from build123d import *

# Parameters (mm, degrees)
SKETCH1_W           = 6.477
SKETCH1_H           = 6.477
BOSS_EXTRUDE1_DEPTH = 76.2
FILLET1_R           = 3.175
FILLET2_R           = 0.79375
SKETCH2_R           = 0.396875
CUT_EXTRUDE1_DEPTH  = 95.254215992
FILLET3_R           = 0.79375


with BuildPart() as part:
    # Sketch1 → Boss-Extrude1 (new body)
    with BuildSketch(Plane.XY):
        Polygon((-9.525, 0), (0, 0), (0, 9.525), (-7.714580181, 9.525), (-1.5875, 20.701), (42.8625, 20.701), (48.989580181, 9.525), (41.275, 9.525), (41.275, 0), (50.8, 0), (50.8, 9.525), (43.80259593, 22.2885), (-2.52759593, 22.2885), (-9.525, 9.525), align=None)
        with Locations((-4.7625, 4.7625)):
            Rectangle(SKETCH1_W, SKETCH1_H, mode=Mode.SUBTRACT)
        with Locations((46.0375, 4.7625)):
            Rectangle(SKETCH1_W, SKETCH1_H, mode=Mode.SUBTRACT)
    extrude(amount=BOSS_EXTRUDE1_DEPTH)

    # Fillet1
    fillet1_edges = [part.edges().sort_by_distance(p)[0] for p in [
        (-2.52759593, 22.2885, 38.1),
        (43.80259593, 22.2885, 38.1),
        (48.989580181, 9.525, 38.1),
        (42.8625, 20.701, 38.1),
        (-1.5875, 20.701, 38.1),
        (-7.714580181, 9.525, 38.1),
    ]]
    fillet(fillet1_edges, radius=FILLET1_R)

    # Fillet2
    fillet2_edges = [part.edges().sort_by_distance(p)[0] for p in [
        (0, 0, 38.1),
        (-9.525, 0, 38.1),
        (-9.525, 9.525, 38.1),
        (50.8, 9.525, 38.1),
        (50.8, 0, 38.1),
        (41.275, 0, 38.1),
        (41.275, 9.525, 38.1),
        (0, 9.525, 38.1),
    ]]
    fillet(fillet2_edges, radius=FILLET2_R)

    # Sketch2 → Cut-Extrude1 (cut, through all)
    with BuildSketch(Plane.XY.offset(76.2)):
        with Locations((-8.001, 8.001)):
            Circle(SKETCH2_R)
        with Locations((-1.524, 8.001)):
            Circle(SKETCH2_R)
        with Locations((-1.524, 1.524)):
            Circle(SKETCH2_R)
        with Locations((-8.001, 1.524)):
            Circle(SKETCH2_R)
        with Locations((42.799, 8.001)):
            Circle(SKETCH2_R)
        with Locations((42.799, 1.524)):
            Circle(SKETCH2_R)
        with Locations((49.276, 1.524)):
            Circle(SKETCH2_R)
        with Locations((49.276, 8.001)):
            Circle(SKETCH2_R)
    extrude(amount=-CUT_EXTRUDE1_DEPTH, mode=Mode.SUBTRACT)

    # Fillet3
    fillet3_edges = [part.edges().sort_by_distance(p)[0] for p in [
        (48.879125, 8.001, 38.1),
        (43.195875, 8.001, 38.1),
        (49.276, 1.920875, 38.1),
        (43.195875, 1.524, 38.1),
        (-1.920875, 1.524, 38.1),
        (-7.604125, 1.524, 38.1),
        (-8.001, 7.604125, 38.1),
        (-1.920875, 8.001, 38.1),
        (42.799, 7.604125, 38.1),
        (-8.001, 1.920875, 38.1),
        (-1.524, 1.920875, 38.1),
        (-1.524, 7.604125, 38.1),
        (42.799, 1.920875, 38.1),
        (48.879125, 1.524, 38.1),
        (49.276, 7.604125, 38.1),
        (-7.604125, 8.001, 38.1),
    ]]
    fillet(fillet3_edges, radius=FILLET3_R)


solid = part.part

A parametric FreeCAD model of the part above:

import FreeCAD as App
import Part
import Sketcher

V = App.Vector
Q = App.Units.Quantity


def edges_at(feature, points):
    """Names of the edges that pass closest to the given points."""
    edges = feature.Shape.Edges
    near = lambda p: min(range(len(edges)), key=lambda i: edges[i].distToShape(Part.Vertex(*p))[0])
    return sorted({f"Edge{near(p) + 1}" for p in points})


def add_polygon(sketch, points):
    """Adds a closed chain of lines whose ends are joined by coincident constraints."""
    first, n = sketch.GeometryCount, len(points)
    for a, b in zip(points, points[1:] + points[:1]):
        sketch.addGeometry(Part.LineSegment(App.Vector(*a, 0), App.Vector(*b, 0)), False)
    for i in range(n):
        sketch.addConstraint(Sketcher.Constraint("Coincident", first + i, 2, first + (i + 1) % n, 1))

doc = App.newDocument("Part")
body = doc.addObject("PartDesign::Body", "Body")

sketch1 = doc.addObject("Sketcher::SketchObject", "Sketch")
body.addObject(sketch1)
sketch1.AttachmentSupport = (doc.XY_Plane, [""])
sketch1.MapMode = "FlatFace"
add_polygon(sketch1, [(-9.525, 0), (0, 0), (0, 9.525), (-7.71458, 9.525), (-1.5875, 20.701), (42.8625, 20.701), (48.98958, 9.525), (41.275, 9.525), (41.275, 0), (50.8, 0), (50.8, 9.525), (43.802596, 22.2885), (-2.527596, 22.2885), (-9.525, 9.525)])
add_polygon(sketch1, [(-1.524, 1.524), (-8.001, 1.524), (-8.001, 8.001), (-1.524, 8.001)])
add_polygon(sketch1, [(49.276, 1.524), (42.799, 1.524), (42.799, 8.001), (49.276, 8.001)])
sketch1.addConstraint(Sketcher.Constraint("Horizontal", 0))
sketch1.addConstraint(Sketcher.Constraint("Vertical", 1))
sketch1.addConstraint(Sketcher.Constraint("Horizontal", 2))
sketch1.addConstraint(Sketcher.Constraint("Horizontal", 4))
sketch1.addConstraint(Sketcher.Constraint("Horizontal", 6))
sketch1.addConstraint(Sketcher.Constraint("Vertical", 7))
sketch1.addConstraint(Sketcher.Constraint("Horizontal", 8))
sketch1.addConstraint(Sketcher.Constraint("Vertical", 9))
sketch1.addConstraint(Sketcher.Constraint("Horizontal", 11))
sketch1.addConstraint(Sketcher.Constraint("Vertical", 13))
sketch1.addConstraint(Sketcher.Constraint("Horizontal", 14))
sketch1.addConstraint(Sketcher.Constraint("Vertical", 15))
sketch1.addConstraint(Sketcher.Constraint("Horizontal", 16))
sketch1.addConstraint(Sketcher.Constraint("Vertical", 17))
sketch1.addConstraint(Sketcher.Constraint("Horizontal", 18))
sketch1.addConstraint(Sketcher.Constraint("Vertical", 19))
sketch1.addConstraint(Sketcher.Constraint("Horizontal", 20))
sketch1.addConstraint(Sketcher.Constraint("Vertical", 21))
sketch1.addConstraint(Sketcher.Constraint("Coincident", 0, 2, -1, 1))
sketch1.addConstraint(Sketcher.Constraint("PointOnObject", 7, 2, -1))
sketch1.addConstraint(Sketcher.Constraint("Parallel", 5, 10))
sketch1.addConstraint(Sketcher.Constraint("Parallel", 3, 12))
sketch1.addConstraint(Sketcher.Constraint("Horizontal", 2, 2, 5, 2))
sketch1.addConstraint(Sketcher.Constraint("Horizontal", 6, 2, 9, 2))
sketch1.addConstraint(Sketcher.Constraint("Horizontal", 9, 2, 12, 2))
sketch1.addConstraint(Sketcher.Constraint("Horizontal", 17, 2, 18, 2))
sketch1.addConstraint(Sketcher.Constraint("Horizontal", 16, 2, 19, 2))
sketch1.addConstraint(Sketcher.Constraint("Equal", 2, 6))
sketch1.addConstraint(Sketcher.Constraint("Equal", 0, 8))
sketch1.addConstraint(Sketcher.Constraint("Equal", 16, 18))
sketch1.addConstraint(Sketcher.Constraint("Equal", 8, 1))
sketch1.addConstraint(Sketcher.Constraint("Equal", 20, 15))
sketch1.addConstraint(Sketcher.Constraint("Equal", 3, 5))
sketch1.addConstraint(Sketcher.Constraint("DistanceX", -1, 1, 8, 2, Q("2 in")))
sketch1.addConstraint(Sketcher.Constraint("DistanceX", 4, 1, 4, 2, Q("1.75 in")))
sketch1.addConstraint(Sketcher.Constraint("DistanceX", 0, 1, 0, 2, Q("0.375 in")))
sketch1.addConstraint(Sketcher.Constraint("DistanceX", 14, 2, 14, 1, Q("0.255 in")))
sketch1.addConstraint(Sketcher.Constraint("DistanceY", -1, 1, 14, 2, Q("0.06 in")))
sketch1.addConstraint(Sketcher.Constraint("DistanceX", 16, 2, -1, 1, Q("0.06 in")))
sketch1.addConstraint(Sketcher.Constraint("DistanceX", -1, 1, 20, 2, Q("1.94 in")))
sketch1.addConstraint(Sketcher.Constraint("DistanceY", 1, 2, 3, 2, Q("0.44 in")))
sketch1.addConstraint(Sketcher.Constraint("DistanceY", 4, 2, 10, 2, Q("0.0625 in")))
sketch1.addConstraint(Sketcher.Constraint("DistanceX", 2, 2, 2, 1, Q("7.71458 mm")))
pad1 = doc.addObject("PartDesign::Pad", "Pad")
body.addObject(pad1)
pad1.Profile = sketch1
pad1.Length = Q("3 in")
doc.recompute()

fillet = doc.addObject("PartDesign::Fillet", "Fillet")
body.addObject(fillet)
fillet.Base = (pad1, edges_at(pad1, [
    (-2.528, 22.288, 38.1),
    (43.803, 22.288, 38.1),
    (48.99, 9.525, 38.1),
    (42.862, 20.701, 38.1),
    (-1.587, 20.701, 38.1),
    (-7.715, 9.525, 38.1),
]))
fillet.Radius = Q("0.125 in")
doc.recompute()

fillet2 = doc.addObject("PartDesign::Fillet", "Fillet001")
body.addObject(fillet2)
fillet2.Base = (fillet, edges_at(fillet, [
    (0, 0, 38.1),
    (-9.525, 0, 38.1),
    (-9.525, 9.525, 38.1),
    (50.8, 9.525, 38.1),
    (50.8, 0, 38.1),
    (41.275, 0, 38.1),
    (41.275, 9.525, 38.1),
    (0, 9.525, 38.1),
]))
fillet2.Radius = Q("0.03125 in")

sketch2 = doc.addObject("Sketcher::SketchObject", "Sketch001")
body.addObject(sketch2)
sketch2.AttachmentSupport = (doc.XY_Plane, [""])
sketch2.MapMode = "FlatFace"
sketch2.AttachmentOffset = App.Placement(V(0, 0, 3 * 25.4), App.Rotation())
sketch2.addGeometry(Part.Circle(V(-8.001, 8.001, 0), V(0, 0, 1), 0.396875), False)
sketch2.addGeometry(Part.Circle(V(-1.524, 8.001, 0), V(0, 0, 1), 0.396875), False)
sketch2.addGeometry(Part.Circle(V(-1.524, 1.524, 0), V(0, 0, 1), 0.396875), False)
sketch2.addGeometry(Part.Circle(V(-8.001, 1.524, 0), V(0, 0, 1), 0.396875), False)
sketch2.addGeometry(Part.Circle(V(42.799, 8.001, 0), V(0, 0, 1), 0.396875), False)
sketch2.addGeometry(Part.Circle(V(42.799, 1.524, 0), V(0, 0, 1), 0.396875), False)
sketch2.addGeometry(Part.Circle(V(49.276, 1.524, 0), V(0, 0, 1), 0.396875), False)
sketch2.addGeometry(Part.Circle(V(49.276, 8.001, 0), V(0, 0, 1), 0.396875), False)
sketch2.addConstraint(Sketcher.Constraint("Equal", 0, 1))
sketch2.addConstraint(Sketcher.Constraint("Equal", 1, 2))
sketch2.addConstraint(Sketcher.Constraint("Equal", 2, 3))
sketch2.addConstraint(Sketcher.Constraint("Equal", 3, 4))
sketch2.addConstraint(Sketcher.Constraint("Equal", 4, 5))
sketch2.addConstraint(Sketcher.Constraint("Equal", 5, 6))
sketch2.addConstraint(Sketcher.Constraint("Equal", 6, 7))
sketch2.addConstraint(Sketcher.Constraint("Horizontal", 0, 3, 1, 3))
sketch2.addConstraint(Sketcher.Constraint("Horizontal", 2, 3, 3, 3))
sketch2.addConstraint(Sketcher.Constraint("Horizontal", 1, 3, 4, 3))
sketch2.addConstraint(Sketcher.Constraint("Horizontal", 3, 3, 5, 3))
sketch2.addConstraint(Sketcher.Constraint("Horizontal", 5, 3, 6, 3))
sketch2.addConstraint(Sketcher.Constraint("Horizontal", 4, 3, 7, 3))
sketch2.addConstraint(Sketcher.Constraint("Vertical", 1, 3, 2, 3))
sketch2.addConstraint(Sketcher.Constraint("Vertical", 0, 3, 3, 3))
sketch2.addConstraint(Sketcher.Constraint("Vertical", 4, 3, 5, 3))
sketch2.addConstraint(Sketcher.Constraint("Vertical", 6, 3, 7, 3))
sketch2.addConstraint(Sketcher.Constraint("Diameter", 0, Q("0.03125 in")))
sketch2.addConstraint(Sketcher.Constraint("DistanceX", 0, 3, 4, 3, Q("2 in")))
sketch2.addConstraint(Sketcher.Constraint("DistanceX", 2, 3, 6, 3, Q("2 in")))
sketch2.addConstraint(Sketcher.Constraint("DistanceX", 1, 3, -1, 1, Q("0.06 in")))
sketch2.addConstraint(Sketcher.Constraint("DistanceY", -1, 1, 2, 3, Q("0.06 in")))
sketch2.addConstraint(Sketcher.Constraint("DistanceX", 0, 3, -1, 1, Q("0.315 in")))
sketch2.addConstraint(Sketcher.Constraint("DistanceY", -1, 1, 0, 3, Q("0.315 in")))
pocket1 = doc.addObject("PartDesign::Pocket", "Pocket")
body.addObject(pocket1)
pocket1.Profile = sketch2
pocket1.Type = "ThroughAll"
doc.recompute()

fillet3 = doc.addObject("PartDesign::Fillet", "Fillet002")
body.addObject(fillet3)
fillet3.Base = (pocket1, edges_at(pocket1, [
    (48.879, 8.001, 38.1),
    (43.196, 8.001, 38.1),
    (49.276, 1.921, 38.1),
    (43.196, 1.524, 38.1),
    (-1.921, 1.524, 38.1),
    (-7.604, 1.524, 38.1),
    (-8.001, 7.604, 38.1),
    (-1.921, 8.001, 38.1),
    (42.799, 7.604, 38.1),
    (-8.001, 1.921, 38.1),
    (-1.524, 1.921, 38.1),
    (-1.524, 7.604, 38.1),
    (42.799, 1.921, 38.1),
    (48.879, 1.524, 38.1),
    (49.276, 7.604, 38.1),
    (-7.604, 8.001, 38.1),
]))
fillet3.Radius = Q("0.03125 in")

doc.recompute()
